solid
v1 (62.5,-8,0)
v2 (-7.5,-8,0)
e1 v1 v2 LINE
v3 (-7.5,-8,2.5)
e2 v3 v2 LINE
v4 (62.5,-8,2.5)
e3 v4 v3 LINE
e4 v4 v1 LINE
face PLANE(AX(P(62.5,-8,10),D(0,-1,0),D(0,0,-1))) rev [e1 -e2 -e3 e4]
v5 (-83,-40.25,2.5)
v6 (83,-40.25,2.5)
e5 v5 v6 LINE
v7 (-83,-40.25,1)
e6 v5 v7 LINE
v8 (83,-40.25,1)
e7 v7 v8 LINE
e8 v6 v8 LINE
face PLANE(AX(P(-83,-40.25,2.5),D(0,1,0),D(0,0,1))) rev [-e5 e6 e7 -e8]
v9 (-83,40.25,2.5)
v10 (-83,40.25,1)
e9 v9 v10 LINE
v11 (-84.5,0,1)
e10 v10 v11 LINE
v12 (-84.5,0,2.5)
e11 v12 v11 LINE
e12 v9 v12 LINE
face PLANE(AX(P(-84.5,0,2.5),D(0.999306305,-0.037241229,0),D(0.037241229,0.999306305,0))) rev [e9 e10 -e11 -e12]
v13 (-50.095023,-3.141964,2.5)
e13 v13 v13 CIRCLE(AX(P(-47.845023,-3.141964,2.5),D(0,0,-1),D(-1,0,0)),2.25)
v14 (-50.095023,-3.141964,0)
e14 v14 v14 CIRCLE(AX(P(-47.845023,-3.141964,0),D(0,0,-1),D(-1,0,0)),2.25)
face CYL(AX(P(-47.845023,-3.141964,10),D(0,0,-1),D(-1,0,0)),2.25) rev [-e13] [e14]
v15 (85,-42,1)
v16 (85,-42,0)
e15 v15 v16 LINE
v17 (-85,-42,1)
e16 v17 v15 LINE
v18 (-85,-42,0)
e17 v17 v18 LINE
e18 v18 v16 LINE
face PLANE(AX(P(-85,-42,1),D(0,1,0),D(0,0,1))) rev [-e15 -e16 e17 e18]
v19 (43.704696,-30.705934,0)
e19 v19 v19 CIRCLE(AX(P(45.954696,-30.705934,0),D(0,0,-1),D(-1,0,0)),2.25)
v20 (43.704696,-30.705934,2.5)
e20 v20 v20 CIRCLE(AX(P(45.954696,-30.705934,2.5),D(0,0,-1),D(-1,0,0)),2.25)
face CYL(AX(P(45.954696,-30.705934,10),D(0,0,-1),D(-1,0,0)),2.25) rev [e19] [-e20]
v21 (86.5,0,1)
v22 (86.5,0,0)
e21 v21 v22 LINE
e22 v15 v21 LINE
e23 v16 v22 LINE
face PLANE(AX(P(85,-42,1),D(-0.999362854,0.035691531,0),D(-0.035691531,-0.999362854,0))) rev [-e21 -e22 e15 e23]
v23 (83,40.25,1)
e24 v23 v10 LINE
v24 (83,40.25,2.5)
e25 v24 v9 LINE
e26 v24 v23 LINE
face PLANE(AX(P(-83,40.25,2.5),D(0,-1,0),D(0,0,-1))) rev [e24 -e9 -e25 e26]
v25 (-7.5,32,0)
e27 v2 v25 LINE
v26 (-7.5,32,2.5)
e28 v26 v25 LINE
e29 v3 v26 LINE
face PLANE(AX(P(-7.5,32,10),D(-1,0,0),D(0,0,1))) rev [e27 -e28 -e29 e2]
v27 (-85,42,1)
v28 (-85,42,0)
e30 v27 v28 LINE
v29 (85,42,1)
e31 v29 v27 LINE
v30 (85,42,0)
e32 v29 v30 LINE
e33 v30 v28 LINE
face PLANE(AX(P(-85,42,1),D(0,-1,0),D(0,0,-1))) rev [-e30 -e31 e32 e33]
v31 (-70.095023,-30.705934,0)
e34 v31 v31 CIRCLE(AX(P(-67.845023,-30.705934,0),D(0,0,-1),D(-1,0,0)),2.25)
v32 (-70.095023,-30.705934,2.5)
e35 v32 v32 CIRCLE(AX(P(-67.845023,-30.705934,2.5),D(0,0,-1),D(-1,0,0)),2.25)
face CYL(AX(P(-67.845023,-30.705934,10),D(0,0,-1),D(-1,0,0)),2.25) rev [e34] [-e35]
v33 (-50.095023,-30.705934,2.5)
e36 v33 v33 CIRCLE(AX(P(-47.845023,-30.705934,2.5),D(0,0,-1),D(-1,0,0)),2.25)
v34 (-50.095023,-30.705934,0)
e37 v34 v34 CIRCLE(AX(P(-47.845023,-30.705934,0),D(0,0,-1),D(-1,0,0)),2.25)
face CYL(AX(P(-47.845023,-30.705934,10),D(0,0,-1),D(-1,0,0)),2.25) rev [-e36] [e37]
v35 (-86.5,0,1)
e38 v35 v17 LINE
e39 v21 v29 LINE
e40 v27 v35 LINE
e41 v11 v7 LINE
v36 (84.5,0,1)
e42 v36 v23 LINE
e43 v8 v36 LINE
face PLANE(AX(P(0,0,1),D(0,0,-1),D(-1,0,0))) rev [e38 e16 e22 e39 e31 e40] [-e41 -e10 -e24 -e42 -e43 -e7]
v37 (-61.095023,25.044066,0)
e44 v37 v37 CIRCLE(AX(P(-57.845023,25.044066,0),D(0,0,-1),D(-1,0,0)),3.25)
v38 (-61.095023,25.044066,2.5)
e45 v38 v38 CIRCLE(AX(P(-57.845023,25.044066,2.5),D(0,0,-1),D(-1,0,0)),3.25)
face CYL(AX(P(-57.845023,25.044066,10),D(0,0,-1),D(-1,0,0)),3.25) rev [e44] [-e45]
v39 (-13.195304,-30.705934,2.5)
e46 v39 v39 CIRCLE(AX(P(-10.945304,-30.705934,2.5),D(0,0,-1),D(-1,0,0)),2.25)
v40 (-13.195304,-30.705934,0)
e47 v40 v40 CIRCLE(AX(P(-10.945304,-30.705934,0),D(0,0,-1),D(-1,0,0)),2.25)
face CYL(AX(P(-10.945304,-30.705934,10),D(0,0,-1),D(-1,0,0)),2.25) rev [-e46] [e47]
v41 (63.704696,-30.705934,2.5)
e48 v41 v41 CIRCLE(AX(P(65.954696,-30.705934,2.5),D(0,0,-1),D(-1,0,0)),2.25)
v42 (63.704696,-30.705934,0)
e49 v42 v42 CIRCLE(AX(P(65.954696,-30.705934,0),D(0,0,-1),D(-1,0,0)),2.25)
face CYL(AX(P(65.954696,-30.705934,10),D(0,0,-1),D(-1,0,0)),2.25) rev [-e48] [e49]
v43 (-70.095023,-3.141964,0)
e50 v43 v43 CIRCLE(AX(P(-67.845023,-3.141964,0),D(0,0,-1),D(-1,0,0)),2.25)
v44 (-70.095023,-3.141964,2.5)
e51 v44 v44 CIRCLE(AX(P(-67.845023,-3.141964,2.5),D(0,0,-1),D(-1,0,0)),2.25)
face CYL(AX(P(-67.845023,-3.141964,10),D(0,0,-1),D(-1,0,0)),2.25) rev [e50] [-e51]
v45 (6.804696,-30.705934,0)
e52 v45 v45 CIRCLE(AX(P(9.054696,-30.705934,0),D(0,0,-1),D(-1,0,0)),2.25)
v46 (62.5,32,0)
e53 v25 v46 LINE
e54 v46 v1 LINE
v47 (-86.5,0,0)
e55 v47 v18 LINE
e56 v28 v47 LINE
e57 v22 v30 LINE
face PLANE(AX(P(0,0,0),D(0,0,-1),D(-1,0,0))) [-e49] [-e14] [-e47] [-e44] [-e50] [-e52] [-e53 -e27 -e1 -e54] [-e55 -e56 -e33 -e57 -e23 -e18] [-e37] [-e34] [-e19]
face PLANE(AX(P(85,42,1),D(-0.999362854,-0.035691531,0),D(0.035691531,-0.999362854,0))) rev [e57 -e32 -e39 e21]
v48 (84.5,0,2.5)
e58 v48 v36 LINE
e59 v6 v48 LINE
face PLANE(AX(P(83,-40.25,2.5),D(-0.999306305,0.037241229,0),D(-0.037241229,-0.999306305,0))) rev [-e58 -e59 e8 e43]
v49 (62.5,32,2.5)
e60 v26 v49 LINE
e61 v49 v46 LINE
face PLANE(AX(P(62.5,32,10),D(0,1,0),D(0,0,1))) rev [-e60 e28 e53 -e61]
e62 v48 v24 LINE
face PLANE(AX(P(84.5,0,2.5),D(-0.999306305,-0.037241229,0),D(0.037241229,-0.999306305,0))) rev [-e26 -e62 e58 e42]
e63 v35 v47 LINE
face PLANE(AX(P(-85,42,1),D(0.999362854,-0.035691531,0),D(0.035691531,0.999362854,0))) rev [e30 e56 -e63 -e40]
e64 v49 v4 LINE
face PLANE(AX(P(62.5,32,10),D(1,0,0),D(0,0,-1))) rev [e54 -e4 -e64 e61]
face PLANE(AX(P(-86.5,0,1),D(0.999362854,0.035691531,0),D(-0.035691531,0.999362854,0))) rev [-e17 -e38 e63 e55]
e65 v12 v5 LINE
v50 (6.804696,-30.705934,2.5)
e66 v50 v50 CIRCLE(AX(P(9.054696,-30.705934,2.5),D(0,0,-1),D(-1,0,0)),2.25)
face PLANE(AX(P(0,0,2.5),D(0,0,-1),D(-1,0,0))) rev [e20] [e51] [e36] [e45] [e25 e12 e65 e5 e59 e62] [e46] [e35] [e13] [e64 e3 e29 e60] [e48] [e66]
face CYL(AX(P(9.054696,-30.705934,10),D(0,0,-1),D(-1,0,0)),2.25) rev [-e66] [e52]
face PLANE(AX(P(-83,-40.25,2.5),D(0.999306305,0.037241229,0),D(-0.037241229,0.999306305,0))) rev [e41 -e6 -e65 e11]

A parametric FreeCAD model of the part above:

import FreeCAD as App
import Part
import Sketcher
from FreeCAD import Vector
Q = App.Units.Quantity

doc = App.newDocument("Part")
body = doc.addObject("PartDesign::Body", "Body")

sketch1 = doc.addObject("Sketcher::SketchObject", "Sketch")
body.addObject(sketch1)
sketch1.AttachmentSupport = (doc.XY_Plane, [""])
sketch1.MapMode = "FlatFace"
sketch1.addGeometry([
    Part.LineSegment(Vector(85, 42, 0), Vector(-85, 42, 0)),
    Part.LineSegment(Vector(-85, 42, 0), Vector(-86.5, 0, 0)),
    Part.LineSegment(Vector(-86.5, 0, 0), Vector(-85, -42, 0)),
    Part.LineSegment(Vector(-85, -42, 0), Vector(85, -42, 0)),
    Part.LineSegment(Vector(85, -42, 0), Vector(86.5, 0, 0)),
    Part.LineSegment(Vector(86.5, 0, 0), Vector(85, 42, 0)),
], False)
sketch1.addConstraint([
    Sketcher.Constraint("Coincident", 0, 2, 1, 1),
    Sketcher.Constraint("Coincident", 1, 2, 2, 1),
    Sketcher.Constraint("Coincident", 2, 2, 3, 1),
    Sketcher.Constraint("Coincident", 3, 2, 4, 1),
    Sketcher.Constraint("Coincident", 4, 2, 5, 1),
    Sketcher.Constraint("Coincident", 5, 2, 0, 1),
    Sketcher.Constraint("Horizontal", 0),
    Sketcher.Constraint("Horizontal", 3),
    Sketcher.Constraint("Symmetric", 0, 2, 3, 2, -1, 1),
    Sketcher.Constraint("Symmetric", 1, 2, 4, 2, -1, 1),
    Sketcher.Constraint("PointOnObject", 1, 2, -1),
    Sketcher.Constraint("Parallel", 2, 5),
    Sketcher.Constraint("Vertical", 0, 2, 2, 2),
    Sketcher.Constraint("DistanceX", 0, 2, 0, 1, Q("170 mm")),
    Sketcher.Constraint("DistanceY", -1, 1, 0, 2, Q("42 mm")),
    Sketcher.Constraint("DistanceX", 1, 2, 4, 2, Q("173 mm")),
])
pad1 = doc.addObject("PartDesign::Pad", "Pad")
body.addObject(pad1)
pad1.Profile = sketch1
pad1.Length = 1

sketch2 = doc.addObject("Sketcher::SketchObject", "Sketch001")
body.addObject(sketch2)
sketch2.AttachmentSupport = (doc.XY_Plane, [""])
sketch2.MapMode = "FlatFace"
sketch2.AttachmentOffset = App.Placement(Vector(0, 0, 1), App.Rotation())
sketch2.addGeometry([
    Part.LineSegment(Vector(83, 40.25, 0), Vector(-83, 40.25, 0)),
    Part.LineSegment(Vector(-83, 40.25, 0), Vector(-84.5, 0, 0)),
    Part.LineSegment(Vector(-84.5, 0, 0), Vector(-83, -40.25, 0)),
    Part.LineSegment(Vector(-83, -40.25, 0), Vector(83, -40.25, 0)),
    Part.LineSegment(Vector(83, -40.25, 0), Vector(84.5, 0, 0)),
    Part.LineSegment(Vector(84.5, 0, 0), Vector(83, 40.25, 0)),
], False)
sketch2.addConstraint([
    Sketcher.Constraint("Coincident", 0, 2, 1, 1),
    Sketcher.Constraint("Coincident", 1, 2, 2, 1),
    Sketcher.Constraint("Coincident", 2, 2, 3, 1),
    Sketcher.Constraint("Coincident", 3, 2, 4, 1),
    Sketcher.Constraint("Coincident", 4, 2, 5, 1),
    Sketcher.Constraint("Coincident", 5, 2, 0, 1),
    Sketcher.Constraint("Horizontal", 0),
    Sketcher.Constraint("Horizontal", 3),
    Sketcher.Constraint("Symmetric", 0, 2, 3, 2, -1, 1),
    Sketcher.Constraint("Symmetric", 1, 2, 4, 2, -1, 1),
    Sketcher.Constraint("PointOnObject", 1, 2, -1),
    Sketcher.Constraint("Parallel", 2, 5),
    Sketcher.Constraint("Vertical", 0, 2, 2, 2),
    Sketcher.Constraint("DistanceX", 0, 2, 0, 1, Q("166 mm")),
    Sketcher.Constraint("DistanceX", 1, 2, 4, 2, Q("169 mm")),
    Sketcher.Constraint("DistanceY", 2, 2, 0, 2, Q("80.5 mm")),
])
pad2 = doc.addObject("PartDesign::Pad", "Pad001")
body.addObject(pad2)
pad2.Profile = sketch2
pad2.Length = 1.5

sketch3 = doc.addObject("Sketcher::SketchObject", "Sketch002")
body.addObject(sketch3)
sketch3.AttachmentSupport = (doc.XY_Plane, [""])
sketch3.MapMode = "FlatFace"
sketch3.addGeometry([
    Part.LineSegment(Vector(62.5, 32, 0), Vector(62.5, -8, 0)),
    Part.LineSegment(Vector(62.5, -8, 0), Vector(-7.5, -8, 0)),
    Part.LineSegment(Vector(-7.5, -8, 0), Vector(-7.5, 32, 0)),
    Part.LineSegment(Vector(-7.5, 32, 0), Vector(62.5, 32, 0)),
], False)
sketch3.addConstraint([
    Sketcher.Constraint("Coincident", 0, 2, 1, 1),
    Sketcher.Constraint("Coincident", 1, 2, 2, 1),
    Sketcher.Constraint("Coincident", 2, 2, 3, 1),
    Sketcher.Constraint("Coincident", 3, 2, 0, 1),
    Sketcher.Constraint("Vertical", 0),
    Sketcher.Constraint("Horizontal", 1),
    Sketcher.Constraint("Vertical", 2),
    Sketcher.Constraint("Horizontal", 3),
    Sketcher.Constraint("DistanceX", 1, 2, 1, 1, Q("70 mm")),
    Sketcher.Constraint("DistanceY", 0, 2, 0, 1, Q("40 mm")),
    Sketcher.Constraint("DistanceY", 0, 2, -1, 1, Q("8 mm")),
    Sketcher.Constraint("DistanceX", -1, 1, 0, 2, Q("62.5 mm")),
])
pocket1 = doc.addObject("PartDesign::Pocket", "Pocket")
body.addObject(pocket1)
pocket1.Profile = sketch3
pocket1.Length = 10
pocket1.Reversed = True

sketch4 = doc.addObject("Sketcher::SketchObject", "Sketch003")
body.addObject(sketch4)
sketch4.AttachmentSupport = (doc.XY_Plane, [""])
sketch4.MapMode = "FlatFace"
sketch4.addGeometry([
    Part.Circle(Vector(65.954696, -30.705934, 0), Vector(0, 0, 1), 2.25),
    Part.Circle(Vector(45.954696, -30.705934, 0), Vector(0, 0, 1), 2.25),
    Part.Circle(Vector(9.054696, -30.705934, 0), Vector(0, 0, 1), 2.25),
    Part.Circle(Vector(-10.945304, -30.705934, 0), Vector(0, 0, 1), 2.25),
    Part.Circle(Vector(-47.845023, -30.705934, 0), Vector(0, 0, 1), 2.25),
    Part.Circle(Vector(-67.845023, -30.705934, 0), Vector(0, 0, 1), 2.25),
    Part.Circle(Vector(-67.845023, -3.141964, 0), Vector(0, 0, 1), 2.25),
    Part.Circle(Vector(-47.845023, -3.141964, 0), Vector(0, 0, 1), 2.25),
    Part.Circle(Vector(-57.845023, 25.044066, 0), Vector(0, 0, 1), 3.25),
], False)
sketch4.addConstraint([
    Sketcher.Constraint("Equal", 0, 1),
    Sketcher.Constraint("Equal", 1, 2),
    Sketcher.Constraint("Equal", 2, 3),
    Sketcher.Constraint("Equal", 3, 4),
    Sketcher.Constraint("Equal", 4, 5),
    Sketcher.Constraint("Equal", 5, 6),
    Sketcher.Constraint("Equal", 6, 7),
    Sketcher.Constraint("Horizontal", 0, 3, 1, 3),
    Sketcher.Constraint("Horizontal", 1, 3, 2, 3),
    Sketcher.Constraint("Horizontal", 2, 3, 3, 3),
    Sketcher.Constraint("Horizontal", 3, 3, 4, 3),
    Sketcher.Constraint("Horizontal", 4, 3, 5, 3),
    Sketcher.Constraint("Horizontal", 6, 3, 7, 3),
    Sketcher.Constraint("Vertical", 5, 3, 6, 3),
    Sketcher.Constraint("Vertical", 4, 3, 7, 3),
    Sketcher.Constraint("Diameter", 0, Q("4.5 mm")),
    Sketcher.Constraint("Diameter", 8, Q("6.5 mm")),
    Sketcher.Constraint("DistanceX", 1, 3, 0, 3, Q("20 mm")),
    Sketcher.Constraint("DistanceX", 3, 3, 2, 3, Q("20 mm")),
    Sketcher.Constraint("DistanceX", 5, 3, 4, 3, Q("20 mm")),
    Sketcher.Constraint("DistanceX", 8, 3, 7, 3, Q("10 mm")),
    Sketcher.Constraint("DistanceX", 2, 3, 1, 3, Q("36.9 mm")),
    Sketcher.Constraint("DistanceY", 4, 3, 8, 3, Q("55.75 mm")),
    Sketcher.Constraint("DistanceX", 4, 3, 3, 3, Q("36.899719 mm")),
    Sketcher.Constraint("DistanceY", 5, 3, 6, 3, Q("27.56397 mm")),
    Sketcher.Constraint("DistanceX", -1, 1, 0, 3, Q("65.954696 mm")),
    Sketcher.Constraint("DistanceY", 0, 3, -1, 1, Q("30.705934 mm")),
])
pocket2 = doc.addObject("PartDesign::Pocket", "Pocket001")
body.addObject(pocket2)
pocket2.Profile = sketch4
pocket2.Length = 10
pocket2.Reversed = True

doc.recompute()
